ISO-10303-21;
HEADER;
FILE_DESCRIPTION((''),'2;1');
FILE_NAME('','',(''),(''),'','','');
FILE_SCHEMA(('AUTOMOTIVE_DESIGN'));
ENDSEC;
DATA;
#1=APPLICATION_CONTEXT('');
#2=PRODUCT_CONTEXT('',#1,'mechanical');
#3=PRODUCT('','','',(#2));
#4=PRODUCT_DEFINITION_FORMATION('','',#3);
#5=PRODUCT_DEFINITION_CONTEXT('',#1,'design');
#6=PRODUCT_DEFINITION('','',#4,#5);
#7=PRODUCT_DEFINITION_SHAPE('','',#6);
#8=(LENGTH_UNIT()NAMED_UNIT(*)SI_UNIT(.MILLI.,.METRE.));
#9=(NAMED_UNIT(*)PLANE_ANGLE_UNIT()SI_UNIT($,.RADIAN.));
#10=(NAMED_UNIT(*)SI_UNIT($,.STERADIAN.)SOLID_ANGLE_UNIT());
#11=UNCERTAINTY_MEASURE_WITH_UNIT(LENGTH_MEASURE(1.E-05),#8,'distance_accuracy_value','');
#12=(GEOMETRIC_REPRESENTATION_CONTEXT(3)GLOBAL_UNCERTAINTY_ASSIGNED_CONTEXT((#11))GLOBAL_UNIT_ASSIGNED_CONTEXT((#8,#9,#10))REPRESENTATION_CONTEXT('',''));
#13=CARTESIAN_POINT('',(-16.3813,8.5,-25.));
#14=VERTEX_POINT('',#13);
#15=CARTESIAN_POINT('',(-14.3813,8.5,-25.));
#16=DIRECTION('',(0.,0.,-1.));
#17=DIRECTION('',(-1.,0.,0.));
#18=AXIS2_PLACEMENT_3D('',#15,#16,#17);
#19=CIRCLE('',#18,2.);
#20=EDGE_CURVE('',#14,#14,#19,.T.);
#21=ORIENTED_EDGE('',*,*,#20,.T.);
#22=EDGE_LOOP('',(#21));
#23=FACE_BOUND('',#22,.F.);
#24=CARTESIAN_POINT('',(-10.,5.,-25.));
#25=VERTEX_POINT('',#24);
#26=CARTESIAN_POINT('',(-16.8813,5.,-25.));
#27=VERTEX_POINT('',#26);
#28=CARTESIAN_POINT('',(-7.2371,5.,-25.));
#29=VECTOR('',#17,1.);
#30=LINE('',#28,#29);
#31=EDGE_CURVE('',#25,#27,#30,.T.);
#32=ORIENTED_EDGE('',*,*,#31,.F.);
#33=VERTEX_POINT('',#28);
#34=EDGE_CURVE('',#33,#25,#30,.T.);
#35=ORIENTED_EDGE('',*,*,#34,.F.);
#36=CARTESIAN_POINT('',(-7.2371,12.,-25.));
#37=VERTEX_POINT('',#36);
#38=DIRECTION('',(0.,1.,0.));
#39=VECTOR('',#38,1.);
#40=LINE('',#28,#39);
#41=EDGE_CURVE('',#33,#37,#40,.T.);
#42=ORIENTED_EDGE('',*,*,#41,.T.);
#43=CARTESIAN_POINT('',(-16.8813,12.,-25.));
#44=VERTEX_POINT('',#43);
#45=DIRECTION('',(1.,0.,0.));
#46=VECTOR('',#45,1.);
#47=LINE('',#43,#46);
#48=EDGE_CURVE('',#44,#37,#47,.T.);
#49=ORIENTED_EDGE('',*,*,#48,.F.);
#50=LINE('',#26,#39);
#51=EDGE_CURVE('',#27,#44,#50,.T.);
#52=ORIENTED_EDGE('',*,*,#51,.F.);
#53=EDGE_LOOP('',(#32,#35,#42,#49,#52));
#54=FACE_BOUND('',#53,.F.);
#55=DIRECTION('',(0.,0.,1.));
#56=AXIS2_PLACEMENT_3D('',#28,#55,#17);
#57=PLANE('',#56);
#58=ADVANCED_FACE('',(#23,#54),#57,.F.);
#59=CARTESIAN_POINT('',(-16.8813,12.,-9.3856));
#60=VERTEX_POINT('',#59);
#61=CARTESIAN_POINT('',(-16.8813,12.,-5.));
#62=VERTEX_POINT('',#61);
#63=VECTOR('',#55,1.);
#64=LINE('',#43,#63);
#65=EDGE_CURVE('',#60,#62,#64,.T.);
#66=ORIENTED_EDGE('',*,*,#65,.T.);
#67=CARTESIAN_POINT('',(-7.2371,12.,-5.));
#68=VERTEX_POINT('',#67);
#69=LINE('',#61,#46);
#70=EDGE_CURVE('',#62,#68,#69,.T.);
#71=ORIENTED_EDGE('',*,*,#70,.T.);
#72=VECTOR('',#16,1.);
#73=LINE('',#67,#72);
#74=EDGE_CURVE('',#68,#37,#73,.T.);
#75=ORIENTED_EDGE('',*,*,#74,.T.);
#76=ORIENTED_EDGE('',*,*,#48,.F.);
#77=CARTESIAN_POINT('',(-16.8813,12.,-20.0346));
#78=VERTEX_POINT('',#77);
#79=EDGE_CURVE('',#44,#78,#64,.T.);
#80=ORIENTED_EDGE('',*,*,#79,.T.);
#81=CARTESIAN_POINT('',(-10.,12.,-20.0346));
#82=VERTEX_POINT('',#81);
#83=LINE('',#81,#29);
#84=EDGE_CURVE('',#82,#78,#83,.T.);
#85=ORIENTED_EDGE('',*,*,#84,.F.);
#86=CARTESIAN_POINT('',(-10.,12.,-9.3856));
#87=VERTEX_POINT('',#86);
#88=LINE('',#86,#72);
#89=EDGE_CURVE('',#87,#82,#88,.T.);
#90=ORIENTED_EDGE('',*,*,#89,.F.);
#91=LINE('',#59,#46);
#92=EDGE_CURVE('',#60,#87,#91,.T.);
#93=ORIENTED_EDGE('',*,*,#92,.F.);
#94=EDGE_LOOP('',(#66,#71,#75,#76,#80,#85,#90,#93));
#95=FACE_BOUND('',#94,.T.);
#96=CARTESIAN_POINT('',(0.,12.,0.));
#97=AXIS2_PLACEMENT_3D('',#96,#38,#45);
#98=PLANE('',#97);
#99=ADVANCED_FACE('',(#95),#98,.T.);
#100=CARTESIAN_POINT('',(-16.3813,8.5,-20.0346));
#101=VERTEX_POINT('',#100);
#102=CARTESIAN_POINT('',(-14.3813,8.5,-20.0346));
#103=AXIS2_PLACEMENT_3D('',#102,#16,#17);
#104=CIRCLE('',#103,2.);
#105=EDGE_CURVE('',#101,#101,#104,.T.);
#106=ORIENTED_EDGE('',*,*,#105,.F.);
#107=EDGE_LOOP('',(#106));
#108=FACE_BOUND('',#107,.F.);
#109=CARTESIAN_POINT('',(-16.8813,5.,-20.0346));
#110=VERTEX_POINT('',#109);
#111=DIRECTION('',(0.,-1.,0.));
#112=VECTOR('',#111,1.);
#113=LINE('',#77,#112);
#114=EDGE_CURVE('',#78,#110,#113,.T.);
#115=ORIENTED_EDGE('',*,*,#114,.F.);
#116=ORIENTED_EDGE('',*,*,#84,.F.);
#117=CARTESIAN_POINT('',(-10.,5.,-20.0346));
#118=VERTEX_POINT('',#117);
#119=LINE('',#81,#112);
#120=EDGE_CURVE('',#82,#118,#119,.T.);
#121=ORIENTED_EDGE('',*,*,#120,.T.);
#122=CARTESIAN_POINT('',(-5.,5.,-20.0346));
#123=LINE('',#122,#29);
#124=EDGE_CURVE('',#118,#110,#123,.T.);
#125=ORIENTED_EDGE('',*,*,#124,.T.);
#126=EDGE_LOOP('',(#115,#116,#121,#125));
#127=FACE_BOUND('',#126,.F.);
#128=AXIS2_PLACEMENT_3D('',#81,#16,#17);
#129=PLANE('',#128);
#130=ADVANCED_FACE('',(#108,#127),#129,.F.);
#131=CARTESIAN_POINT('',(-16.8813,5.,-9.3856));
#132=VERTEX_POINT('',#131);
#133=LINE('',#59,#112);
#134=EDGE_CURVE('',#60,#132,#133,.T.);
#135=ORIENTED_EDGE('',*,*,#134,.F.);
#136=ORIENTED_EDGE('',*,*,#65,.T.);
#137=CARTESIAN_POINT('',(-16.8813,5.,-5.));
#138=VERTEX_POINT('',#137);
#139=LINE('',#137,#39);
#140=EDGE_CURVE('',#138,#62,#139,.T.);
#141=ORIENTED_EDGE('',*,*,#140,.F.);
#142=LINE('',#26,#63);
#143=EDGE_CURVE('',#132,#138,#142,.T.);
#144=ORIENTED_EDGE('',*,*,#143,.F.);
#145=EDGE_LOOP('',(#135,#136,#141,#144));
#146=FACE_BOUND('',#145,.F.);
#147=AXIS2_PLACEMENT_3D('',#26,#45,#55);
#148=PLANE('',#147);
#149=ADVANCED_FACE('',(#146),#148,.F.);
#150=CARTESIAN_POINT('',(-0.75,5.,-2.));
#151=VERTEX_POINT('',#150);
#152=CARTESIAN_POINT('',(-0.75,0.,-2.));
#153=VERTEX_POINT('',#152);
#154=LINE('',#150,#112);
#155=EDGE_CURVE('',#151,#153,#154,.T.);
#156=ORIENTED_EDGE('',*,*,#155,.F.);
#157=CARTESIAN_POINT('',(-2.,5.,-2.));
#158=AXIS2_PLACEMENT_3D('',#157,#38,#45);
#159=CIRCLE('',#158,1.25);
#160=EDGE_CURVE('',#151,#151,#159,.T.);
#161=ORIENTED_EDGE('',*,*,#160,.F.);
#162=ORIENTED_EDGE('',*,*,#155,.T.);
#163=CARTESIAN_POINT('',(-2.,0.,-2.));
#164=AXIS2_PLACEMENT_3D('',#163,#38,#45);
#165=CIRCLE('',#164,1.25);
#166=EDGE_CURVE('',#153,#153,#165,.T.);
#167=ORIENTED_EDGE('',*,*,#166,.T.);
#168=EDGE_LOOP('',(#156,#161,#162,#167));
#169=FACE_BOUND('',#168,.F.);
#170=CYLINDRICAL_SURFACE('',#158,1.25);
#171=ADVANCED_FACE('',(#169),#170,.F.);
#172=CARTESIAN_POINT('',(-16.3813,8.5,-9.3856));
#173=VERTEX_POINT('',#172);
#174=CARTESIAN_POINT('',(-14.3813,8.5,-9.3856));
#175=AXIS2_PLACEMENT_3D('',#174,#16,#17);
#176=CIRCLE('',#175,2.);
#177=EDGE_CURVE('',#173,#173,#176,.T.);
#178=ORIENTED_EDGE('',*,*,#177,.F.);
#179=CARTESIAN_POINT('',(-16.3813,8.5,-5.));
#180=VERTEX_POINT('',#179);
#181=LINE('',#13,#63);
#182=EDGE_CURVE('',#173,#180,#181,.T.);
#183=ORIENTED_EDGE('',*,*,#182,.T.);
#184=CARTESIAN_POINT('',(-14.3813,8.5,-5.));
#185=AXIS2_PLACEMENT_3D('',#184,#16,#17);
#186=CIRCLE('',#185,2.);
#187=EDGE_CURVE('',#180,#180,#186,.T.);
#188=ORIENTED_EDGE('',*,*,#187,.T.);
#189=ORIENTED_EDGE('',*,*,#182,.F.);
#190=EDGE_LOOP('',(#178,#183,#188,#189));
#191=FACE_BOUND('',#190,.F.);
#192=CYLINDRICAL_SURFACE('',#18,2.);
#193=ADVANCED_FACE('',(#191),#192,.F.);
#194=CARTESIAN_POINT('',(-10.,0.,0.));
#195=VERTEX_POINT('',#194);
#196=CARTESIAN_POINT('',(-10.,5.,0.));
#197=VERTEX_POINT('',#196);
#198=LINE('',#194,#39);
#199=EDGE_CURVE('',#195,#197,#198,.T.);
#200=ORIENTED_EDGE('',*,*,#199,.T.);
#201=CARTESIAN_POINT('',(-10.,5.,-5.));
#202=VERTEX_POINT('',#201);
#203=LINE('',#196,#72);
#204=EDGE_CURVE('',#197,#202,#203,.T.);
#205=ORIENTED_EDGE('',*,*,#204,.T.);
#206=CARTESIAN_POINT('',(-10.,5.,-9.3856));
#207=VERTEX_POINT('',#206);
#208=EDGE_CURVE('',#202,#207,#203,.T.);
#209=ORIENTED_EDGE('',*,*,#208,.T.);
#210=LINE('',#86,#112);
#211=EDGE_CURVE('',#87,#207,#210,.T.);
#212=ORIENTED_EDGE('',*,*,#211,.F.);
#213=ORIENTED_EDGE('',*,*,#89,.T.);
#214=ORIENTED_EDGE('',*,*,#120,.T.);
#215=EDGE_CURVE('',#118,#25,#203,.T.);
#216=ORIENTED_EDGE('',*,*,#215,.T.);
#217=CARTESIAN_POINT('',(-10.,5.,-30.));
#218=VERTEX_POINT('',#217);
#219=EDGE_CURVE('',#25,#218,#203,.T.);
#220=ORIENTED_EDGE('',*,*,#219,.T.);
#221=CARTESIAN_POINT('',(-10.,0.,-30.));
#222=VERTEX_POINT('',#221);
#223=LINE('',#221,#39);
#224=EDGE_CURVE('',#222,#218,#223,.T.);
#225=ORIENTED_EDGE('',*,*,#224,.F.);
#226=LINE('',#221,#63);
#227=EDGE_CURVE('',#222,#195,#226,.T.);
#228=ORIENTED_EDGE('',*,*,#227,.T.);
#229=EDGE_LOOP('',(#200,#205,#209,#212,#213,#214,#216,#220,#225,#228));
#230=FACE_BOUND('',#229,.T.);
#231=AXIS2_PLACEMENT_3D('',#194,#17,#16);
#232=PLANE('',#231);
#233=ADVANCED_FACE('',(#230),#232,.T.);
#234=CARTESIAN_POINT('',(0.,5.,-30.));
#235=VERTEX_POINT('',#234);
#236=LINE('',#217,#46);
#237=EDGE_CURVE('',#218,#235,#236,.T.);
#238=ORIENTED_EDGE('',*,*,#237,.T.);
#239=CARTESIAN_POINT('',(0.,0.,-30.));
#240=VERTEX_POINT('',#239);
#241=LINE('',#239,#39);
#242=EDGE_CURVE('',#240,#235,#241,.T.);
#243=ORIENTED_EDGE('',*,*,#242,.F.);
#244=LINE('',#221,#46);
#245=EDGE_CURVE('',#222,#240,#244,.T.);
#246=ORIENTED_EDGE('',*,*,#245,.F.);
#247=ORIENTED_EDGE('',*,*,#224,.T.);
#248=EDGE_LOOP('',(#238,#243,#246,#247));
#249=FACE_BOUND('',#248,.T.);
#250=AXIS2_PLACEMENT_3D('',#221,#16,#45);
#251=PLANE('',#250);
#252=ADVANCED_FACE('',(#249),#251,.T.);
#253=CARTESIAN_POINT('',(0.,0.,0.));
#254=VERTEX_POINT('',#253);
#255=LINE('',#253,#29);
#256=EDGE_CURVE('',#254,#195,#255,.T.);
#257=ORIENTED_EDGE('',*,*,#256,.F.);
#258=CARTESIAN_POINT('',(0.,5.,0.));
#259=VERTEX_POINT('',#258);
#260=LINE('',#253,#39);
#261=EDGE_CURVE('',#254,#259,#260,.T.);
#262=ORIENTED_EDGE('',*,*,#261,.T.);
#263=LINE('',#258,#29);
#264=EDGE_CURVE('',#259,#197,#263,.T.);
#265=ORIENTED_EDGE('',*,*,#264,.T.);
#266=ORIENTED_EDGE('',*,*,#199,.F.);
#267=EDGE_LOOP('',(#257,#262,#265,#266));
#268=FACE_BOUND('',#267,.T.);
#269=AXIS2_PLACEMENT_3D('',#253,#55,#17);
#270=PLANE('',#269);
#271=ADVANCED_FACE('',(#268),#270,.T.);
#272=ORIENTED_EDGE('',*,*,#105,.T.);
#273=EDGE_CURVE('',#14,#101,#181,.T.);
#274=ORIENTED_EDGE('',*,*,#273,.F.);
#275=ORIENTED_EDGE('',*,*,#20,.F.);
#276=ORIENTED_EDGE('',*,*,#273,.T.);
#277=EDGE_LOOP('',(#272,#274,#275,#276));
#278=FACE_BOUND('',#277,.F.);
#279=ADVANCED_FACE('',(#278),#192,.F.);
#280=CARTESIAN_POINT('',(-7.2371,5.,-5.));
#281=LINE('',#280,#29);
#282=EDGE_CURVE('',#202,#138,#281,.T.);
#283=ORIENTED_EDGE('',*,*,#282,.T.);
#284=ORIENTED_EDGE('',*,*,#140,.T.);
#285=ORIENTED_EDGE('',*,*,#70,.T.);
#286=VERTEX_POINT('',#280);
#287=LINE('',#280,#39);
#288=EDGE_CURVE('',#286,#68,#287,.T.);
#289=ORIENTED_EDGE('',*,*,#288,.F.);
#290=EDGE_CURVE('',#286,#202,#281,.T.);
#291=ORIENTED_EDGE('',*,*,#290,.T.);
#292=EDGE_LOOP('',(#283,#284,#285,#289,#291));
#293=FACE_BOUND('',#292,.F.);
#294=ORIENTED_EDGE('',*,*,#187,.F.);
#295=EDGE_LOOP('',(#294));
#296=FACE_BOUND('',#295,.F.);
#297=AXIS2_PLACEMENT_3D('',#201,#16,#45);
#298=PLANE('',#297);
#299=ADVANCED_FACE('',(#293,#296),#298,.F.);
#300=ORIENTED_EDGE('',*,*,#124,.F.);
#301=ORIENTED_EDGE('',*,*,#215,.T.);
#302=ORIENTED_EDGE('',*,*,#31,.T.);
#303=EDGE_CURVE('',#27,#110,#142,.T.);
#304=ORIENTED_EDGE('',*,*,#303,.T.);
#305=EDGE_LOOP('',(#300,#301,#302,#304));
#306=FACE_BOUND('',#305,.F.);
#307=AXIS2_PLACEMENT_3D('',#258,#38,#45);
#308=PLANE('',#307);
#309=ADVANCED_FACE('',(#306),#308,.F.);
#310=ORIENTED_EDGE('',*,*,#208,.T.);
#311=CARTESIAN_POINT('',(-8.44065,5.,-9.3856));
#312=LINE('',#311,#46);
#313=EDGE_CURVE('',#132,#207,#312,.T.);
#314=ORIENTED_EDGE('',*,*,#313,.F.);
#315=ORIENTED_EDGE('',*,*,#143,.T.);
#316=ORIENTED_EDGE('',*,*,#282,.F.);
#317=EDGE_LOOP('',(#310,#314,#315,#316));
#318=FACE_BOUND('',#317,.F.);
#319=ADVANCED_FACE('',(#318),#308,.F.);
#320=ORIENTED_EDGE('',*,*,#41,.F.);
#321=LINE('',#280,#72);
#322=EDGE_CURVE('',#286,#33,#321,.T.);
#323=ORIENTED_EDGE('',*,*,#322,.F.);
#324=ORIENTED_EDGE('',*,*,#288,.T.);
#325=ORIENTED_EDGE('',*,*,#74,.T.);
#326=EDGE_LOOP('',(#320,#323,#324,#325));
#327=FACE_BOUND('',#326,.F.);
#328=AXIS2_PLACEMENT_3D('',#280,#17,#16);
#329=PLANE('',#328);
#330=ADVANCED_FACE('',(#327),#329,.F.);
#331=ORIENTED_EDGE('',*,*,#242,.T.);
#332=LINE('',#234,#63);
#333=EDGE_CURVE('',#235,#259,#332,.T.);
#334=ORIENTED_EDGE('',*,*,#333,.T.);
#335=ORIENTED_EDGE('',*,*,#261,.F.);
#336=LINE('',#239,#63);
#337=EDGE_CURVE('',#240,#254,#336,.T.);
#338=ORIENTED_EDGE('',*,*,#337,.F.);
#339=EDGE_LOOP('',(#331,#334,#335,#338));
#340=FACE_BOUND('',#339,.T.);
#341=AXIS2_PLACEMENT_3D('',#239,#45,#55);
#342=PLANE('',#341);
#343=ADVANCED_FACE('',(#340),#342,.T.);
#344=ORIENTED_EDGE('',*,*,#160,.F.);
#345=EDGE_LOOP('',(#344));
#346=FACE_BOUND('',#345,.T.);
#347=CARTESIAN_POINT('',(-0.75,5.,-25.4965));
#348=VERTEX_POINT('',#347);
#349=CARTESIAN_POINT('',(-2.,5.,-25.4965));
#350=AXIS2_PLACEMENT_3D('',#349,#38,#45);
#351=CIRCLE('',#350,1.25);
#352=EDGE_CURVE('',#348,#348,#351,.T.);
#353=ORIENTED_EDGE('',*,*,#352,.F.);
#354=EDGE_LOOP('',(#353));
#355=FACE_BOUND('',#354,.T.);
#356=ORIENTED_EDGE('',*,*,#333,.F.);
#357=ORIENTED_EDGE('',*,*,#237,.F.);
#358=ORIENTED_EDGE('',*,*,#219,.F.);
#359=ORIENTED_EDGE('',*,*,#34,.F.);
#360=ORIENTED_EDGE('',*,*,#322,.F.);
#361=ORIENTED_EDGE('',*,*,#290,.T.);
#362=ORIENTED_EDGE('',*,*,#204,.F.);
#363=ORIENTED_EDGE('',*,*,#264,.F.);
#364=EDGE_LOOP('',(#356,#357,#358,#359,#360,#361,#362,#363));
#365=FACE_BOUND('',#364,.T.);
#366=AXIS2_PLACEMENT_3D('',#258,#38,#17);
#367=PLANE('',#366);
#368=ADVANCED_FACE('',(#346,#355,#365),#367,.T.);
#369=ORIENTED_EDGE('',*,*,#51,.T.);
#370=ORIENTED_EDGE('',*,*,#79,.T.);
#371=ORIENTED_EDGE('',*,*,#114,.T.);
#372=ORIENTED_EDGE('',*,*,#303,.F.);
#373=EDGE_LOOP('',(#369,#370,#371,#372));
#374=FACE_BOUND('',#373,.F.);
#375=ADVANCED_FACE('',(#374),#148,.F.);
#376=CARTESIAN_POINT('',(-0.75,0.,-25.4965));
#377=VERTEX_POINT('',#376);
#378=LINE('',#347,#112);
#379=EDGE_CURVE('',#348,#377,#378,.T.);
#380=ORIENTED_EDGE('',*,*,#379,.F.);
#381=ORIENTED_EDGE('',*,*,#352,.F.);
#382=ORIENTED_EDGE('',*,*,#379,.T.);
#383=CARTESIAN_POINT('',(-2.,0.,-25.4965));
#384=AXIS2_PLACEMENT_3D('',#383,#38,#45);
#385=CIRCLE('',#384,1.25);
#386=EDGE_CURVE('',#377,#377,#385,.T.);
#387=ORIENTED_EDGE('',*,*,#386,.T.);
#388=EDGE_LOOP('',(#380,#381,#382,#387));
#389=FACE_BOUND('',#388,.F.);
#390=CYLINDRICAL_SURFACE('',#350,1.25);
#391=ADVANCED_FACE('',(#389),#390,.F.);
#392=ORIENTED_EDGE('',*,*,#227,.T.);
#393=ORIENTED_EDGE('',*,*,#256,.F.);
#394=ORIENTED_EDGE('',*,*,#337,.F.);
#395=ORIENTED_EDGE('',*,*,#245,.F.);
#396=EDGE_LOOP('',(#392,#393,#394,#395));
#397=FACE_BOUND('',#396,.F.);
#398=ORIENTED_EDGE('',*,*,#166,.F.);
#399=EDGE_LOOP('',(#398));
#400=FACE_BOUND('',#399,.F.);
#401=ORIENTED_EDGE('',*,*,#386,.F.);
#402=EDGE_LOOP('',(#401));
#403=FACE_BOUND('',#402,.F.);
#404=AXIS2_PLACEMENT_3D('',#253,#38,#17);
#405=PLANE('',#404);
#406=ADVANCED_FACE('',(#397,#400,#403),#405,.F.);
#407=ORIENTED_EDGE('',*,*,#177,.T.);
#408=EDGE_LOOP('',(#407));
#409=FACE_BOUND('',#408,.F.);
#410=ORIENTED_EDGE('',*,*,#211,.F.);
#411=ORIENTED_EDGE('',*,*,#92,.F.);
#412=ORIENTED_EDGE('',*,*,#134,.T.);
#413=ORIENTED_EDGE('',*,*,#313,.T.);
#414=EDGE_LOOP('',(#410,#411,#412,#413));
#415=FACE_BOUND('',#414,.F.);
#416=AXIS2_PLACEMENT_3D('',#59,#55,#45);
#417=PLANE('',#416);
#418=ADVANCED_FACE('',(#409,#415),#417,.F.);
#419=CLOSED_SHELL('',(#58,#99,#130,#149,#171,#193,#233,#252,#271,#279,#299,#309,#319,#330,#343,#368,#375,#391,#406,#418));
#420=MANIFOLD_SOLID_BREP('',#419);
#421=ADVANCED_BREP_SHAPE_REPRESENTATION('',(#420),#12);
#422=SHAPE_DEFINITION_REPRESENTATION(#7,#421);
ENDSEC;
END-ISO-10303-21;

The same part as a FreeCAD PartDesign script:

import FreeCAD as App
import Part
import Sketcher
Q = App.Units.Quantity


def add_polygon(sketch, points):
    """Adds a closed chain of lines whose ends are joined by coincident constraints."""
    first, n = sketch.GeometryCount, len(points)
    for a, b in zip(points, points[1:] + points[:1]):
        sketch.addGeometry(Part.LineSegment(App.Vector(*a, 0), App.Vector(*b, 0)), False)
    for i in range(n):
        sketch.addConstraint(Sketcher.Constraint("Coincident", first + i, 2, first + (i + 1) % n, 1))

doc = App.newDocument("Part")
body = doc.addObject("PartDesign::Body", "Body")

sketch1 = body.newObject("Sketcher::SketchObject", "Sketch")
sketch1.AttachmentSupport = (doc.getObject("XZ_Plane"), [""])
sketch1.MapMode = "FlatFace"
add_polygon(sketch1, [(-10, 0), (0, 0), (0, -30), (-10, -30)])
sketch1.addConstraint([
    Sketcher.Constraint("Horizontal", 0),
    Sketcher.Constraint("Vertical", 1),
    Sketcher.Constraint("Horizontal", 2),
    Sketcher.Constraint("Vertical", 3),
    Sketcher.Constraint("Coincident", 0, 2, -1, 1),
    Sketcher.Constraint("DistanceX", 0, 1, 0, 2, Q("10 mm")),
    Sketcher.Constraint("DistanceY", 1, 2, 1, 1, Q("30 mm")),
])
pad1 = body.newObject("PartDesign::Pad", "Pad")
pad1.Profile = sketch1
pad1.Length = 5
pad1.Reversed = True

sketch2 = body.newObject("Sketcher::SketchObject", "Sketch001")
sketch2.AttachmentSupport = (doc.getObject("XZ_Plane"), [""])
sketch2.MapMode = "FlatFace"
sketch2.AttachmentOffset = App.Placement(App.Vector(0, 0, -5), App.Rotation())
sketch2.addGeometry([
    Part.Circle(App.Vector(-2, -2, 0), App.Vector(0, 0, 1), 1.2),
    Part.Circle(App.Vector(-2, -25.5, 0), App.Vector(0, 0, 1), 1.2),
], False)
sketch2.addConstraint([
    Sketcher.Constraint("Equal", 0, 1),
    Sketcher.Constraint("Vertical", 0, 3, 1, 3),
    Sketcher.Constraint("Diameter", 0, Q("2.5 mm")),
    Sketcher.Constraint("DistanceX", 0, 3, -1, 1, Q("2 mm")),
    Sketcher.Constraint("DistanceY", 0, 3, -1, 1, Q("2 mm")),
    Sketcher.Constraint("DistanceY", 1, 3, 0, 3, Q("23.4965 mm")),
])
pocket1 = body.newObject("PartDesign::Pocket", "Pocket")
pocket1.Profile = sketch2
pocket1.Type = "ThroughAll"
pocket1.Reversed = True

sketch3 = body.newObject("Sketcher::SketchObject", "Sketch002")
sketch3.AttachmentSupport = (doc.getObject("XZ_Plane"), [""])
sketch3.MapMode = "FlatFace"
sketch3.AttachmentOffset = App.Placement(App.Vector(0, 0, -5), App.Rotation())
add_polygon(sketch3, [(-7, -25), (-17, -25), (-17, -5), (-7, -5)])
sketch3.addConstraint([
    Sketcher.Constraint("Horizontal", 0),
    Sketcher.Constraint("Vertical", 1),
    Sketcher.Constraint("Horizontal", 2),
    Sketcher.Constraint("Vertical", 3),
    Sketcher.Constraint("DistanceY", 1, 1, 1, 2, Q("20 mm")),
    Sketcher.Constraint("DistanceY", 1, 2, -1, 1, Q("5 mm")),
    Sketcher.Constraint("DistanceX", 0, 2, 0, 1, Q("9.6442 mm")),
    Sketcher.Constraint("DistanceX", 2, 2, -1, 1, Q("7.237 mm")),
])
pad2 = body.newObject("PartDesign::Pad", "Pad001")
pad2.Profile = sketch3
pad2.Length = 7
pad2.Reversed = True

sketch4 = body.newObject("Sketcher::SketchObject", "Sketch003")
sketch4.AttachmentSupport = (doc.getObject("XY_Plane"), [""])
sketch4.MapMode = "FlatFace"
sketch4.AttachmentOffset = App.Placement(App.Vector(0, 0, -25), App.Rotation())
sketch4.addGeometry(Part.Circle(App.Vector(-14.4, 8.5, 0), App.Vector(0, 0, 1), 2), False)
sketch4.addConstraint([
    Sketcher.Constraint("Diameter", 0, Q("4 mm")),
    Sketcher.Constraint("DistanceY", -1, 1, 0, 3, Q("8.5 mm")),
    Sketcher.Constraint("DistanceX", 0, 3, -1, 1, Q("14.3813 mm")),
])
pocket2 = body.newObject("PartDesign::Pocket", "Pocket001")
pocket2.Profile = sketch4
pocket2.Type = "ThroughAll"
pocket2.Reversed = True

sketch5 = body.newObject("Sketcher::SketchObject", "Sketch004")
sketch5.AttachmentSupport = (doc.getObject("XZ_Plane"), [""])
sketch5.MapMode = "FlatFace"
sketch5.AttachmentOffset = App.Placement(App.Vector(0, 0, -12), App.Rotation())
add_polygon(sketch5, [(-10, -19), (-17, -19), (-17, -10), (-10, -10)])
sketch5.addConstraint([
    Sketcher.Constraint("Horizontal", 0),
    Sketcher.Constraint("Vertical", 1),
    Sketcher.Constraint("Horizontal", 2),
    Sketcher.Constraint("Vertical", 3),
    Sketcher.Constraint("DistanceY", 1, 1, 1, 2, Q("9.25 mm")),
    Sketcher.Constraint("DistanceY", 1, 2, -1, 1, Q("10 mm")),
    Sketcher.Constraint("DistanceX", 2, 2, -1, 1, Q("10 mm")),
    Sketcher.Constraint("DistanceX", 0, 2, 0, 1, Q("6.8813 mm")),
])
pocket3 = body.newObject("PartDesign::Pocket", "Pocket002")
pocket3.Profile = sketch5
pocket3.Type = "ThroughAll"
pocket3.Reversed = True

sketch6 = body.newObject("Sketcher::SketchObject", "Sketch005")
sketch6.AttachmentSupport = (doc.getObject("XZ_Plane"), [""])
sketch6.MapMode = "FlatFace"
sketch6.AttachmentOffset = App.Placement(App.Vector(0, 0, -12), App.Rotation())
add_polygon(sketch6, [(-17, -20), (-17, -9), (-10, -9), (-10, -20)])
sketch6.addConstraint([
    Sketcher.Constraint("Vertical", 0),
    Sketcher.Constraint("Horizontal", 1),
    Sketcher.Constraint("Vertical", 2),
    Sketcher.Constraint("Horizontal", 3),
    Sketcher.Constraint("DistanceX", 1, 2, -1, 1, Q("10 mm")),
    Sketcher.Constraint("DistanceY", 0, 1, 0, 2, Q("10.649 mm")),
    Sketcher.Constraint("DistanceX", 1, 1, 1, 2, Q("6.8813 mm")),
    Sketcher.Constraint("DistanceY", 0, 2, -1, 1, Q("9.3856 mm")),
])
pocket4 = body.newObject("PartDesign::Pocket", "Pocket003")
pocket4.Profile = sketch6
pocket4.Type = "ThroughAll"
pocket4.Reversed = True

doc.recompute()
